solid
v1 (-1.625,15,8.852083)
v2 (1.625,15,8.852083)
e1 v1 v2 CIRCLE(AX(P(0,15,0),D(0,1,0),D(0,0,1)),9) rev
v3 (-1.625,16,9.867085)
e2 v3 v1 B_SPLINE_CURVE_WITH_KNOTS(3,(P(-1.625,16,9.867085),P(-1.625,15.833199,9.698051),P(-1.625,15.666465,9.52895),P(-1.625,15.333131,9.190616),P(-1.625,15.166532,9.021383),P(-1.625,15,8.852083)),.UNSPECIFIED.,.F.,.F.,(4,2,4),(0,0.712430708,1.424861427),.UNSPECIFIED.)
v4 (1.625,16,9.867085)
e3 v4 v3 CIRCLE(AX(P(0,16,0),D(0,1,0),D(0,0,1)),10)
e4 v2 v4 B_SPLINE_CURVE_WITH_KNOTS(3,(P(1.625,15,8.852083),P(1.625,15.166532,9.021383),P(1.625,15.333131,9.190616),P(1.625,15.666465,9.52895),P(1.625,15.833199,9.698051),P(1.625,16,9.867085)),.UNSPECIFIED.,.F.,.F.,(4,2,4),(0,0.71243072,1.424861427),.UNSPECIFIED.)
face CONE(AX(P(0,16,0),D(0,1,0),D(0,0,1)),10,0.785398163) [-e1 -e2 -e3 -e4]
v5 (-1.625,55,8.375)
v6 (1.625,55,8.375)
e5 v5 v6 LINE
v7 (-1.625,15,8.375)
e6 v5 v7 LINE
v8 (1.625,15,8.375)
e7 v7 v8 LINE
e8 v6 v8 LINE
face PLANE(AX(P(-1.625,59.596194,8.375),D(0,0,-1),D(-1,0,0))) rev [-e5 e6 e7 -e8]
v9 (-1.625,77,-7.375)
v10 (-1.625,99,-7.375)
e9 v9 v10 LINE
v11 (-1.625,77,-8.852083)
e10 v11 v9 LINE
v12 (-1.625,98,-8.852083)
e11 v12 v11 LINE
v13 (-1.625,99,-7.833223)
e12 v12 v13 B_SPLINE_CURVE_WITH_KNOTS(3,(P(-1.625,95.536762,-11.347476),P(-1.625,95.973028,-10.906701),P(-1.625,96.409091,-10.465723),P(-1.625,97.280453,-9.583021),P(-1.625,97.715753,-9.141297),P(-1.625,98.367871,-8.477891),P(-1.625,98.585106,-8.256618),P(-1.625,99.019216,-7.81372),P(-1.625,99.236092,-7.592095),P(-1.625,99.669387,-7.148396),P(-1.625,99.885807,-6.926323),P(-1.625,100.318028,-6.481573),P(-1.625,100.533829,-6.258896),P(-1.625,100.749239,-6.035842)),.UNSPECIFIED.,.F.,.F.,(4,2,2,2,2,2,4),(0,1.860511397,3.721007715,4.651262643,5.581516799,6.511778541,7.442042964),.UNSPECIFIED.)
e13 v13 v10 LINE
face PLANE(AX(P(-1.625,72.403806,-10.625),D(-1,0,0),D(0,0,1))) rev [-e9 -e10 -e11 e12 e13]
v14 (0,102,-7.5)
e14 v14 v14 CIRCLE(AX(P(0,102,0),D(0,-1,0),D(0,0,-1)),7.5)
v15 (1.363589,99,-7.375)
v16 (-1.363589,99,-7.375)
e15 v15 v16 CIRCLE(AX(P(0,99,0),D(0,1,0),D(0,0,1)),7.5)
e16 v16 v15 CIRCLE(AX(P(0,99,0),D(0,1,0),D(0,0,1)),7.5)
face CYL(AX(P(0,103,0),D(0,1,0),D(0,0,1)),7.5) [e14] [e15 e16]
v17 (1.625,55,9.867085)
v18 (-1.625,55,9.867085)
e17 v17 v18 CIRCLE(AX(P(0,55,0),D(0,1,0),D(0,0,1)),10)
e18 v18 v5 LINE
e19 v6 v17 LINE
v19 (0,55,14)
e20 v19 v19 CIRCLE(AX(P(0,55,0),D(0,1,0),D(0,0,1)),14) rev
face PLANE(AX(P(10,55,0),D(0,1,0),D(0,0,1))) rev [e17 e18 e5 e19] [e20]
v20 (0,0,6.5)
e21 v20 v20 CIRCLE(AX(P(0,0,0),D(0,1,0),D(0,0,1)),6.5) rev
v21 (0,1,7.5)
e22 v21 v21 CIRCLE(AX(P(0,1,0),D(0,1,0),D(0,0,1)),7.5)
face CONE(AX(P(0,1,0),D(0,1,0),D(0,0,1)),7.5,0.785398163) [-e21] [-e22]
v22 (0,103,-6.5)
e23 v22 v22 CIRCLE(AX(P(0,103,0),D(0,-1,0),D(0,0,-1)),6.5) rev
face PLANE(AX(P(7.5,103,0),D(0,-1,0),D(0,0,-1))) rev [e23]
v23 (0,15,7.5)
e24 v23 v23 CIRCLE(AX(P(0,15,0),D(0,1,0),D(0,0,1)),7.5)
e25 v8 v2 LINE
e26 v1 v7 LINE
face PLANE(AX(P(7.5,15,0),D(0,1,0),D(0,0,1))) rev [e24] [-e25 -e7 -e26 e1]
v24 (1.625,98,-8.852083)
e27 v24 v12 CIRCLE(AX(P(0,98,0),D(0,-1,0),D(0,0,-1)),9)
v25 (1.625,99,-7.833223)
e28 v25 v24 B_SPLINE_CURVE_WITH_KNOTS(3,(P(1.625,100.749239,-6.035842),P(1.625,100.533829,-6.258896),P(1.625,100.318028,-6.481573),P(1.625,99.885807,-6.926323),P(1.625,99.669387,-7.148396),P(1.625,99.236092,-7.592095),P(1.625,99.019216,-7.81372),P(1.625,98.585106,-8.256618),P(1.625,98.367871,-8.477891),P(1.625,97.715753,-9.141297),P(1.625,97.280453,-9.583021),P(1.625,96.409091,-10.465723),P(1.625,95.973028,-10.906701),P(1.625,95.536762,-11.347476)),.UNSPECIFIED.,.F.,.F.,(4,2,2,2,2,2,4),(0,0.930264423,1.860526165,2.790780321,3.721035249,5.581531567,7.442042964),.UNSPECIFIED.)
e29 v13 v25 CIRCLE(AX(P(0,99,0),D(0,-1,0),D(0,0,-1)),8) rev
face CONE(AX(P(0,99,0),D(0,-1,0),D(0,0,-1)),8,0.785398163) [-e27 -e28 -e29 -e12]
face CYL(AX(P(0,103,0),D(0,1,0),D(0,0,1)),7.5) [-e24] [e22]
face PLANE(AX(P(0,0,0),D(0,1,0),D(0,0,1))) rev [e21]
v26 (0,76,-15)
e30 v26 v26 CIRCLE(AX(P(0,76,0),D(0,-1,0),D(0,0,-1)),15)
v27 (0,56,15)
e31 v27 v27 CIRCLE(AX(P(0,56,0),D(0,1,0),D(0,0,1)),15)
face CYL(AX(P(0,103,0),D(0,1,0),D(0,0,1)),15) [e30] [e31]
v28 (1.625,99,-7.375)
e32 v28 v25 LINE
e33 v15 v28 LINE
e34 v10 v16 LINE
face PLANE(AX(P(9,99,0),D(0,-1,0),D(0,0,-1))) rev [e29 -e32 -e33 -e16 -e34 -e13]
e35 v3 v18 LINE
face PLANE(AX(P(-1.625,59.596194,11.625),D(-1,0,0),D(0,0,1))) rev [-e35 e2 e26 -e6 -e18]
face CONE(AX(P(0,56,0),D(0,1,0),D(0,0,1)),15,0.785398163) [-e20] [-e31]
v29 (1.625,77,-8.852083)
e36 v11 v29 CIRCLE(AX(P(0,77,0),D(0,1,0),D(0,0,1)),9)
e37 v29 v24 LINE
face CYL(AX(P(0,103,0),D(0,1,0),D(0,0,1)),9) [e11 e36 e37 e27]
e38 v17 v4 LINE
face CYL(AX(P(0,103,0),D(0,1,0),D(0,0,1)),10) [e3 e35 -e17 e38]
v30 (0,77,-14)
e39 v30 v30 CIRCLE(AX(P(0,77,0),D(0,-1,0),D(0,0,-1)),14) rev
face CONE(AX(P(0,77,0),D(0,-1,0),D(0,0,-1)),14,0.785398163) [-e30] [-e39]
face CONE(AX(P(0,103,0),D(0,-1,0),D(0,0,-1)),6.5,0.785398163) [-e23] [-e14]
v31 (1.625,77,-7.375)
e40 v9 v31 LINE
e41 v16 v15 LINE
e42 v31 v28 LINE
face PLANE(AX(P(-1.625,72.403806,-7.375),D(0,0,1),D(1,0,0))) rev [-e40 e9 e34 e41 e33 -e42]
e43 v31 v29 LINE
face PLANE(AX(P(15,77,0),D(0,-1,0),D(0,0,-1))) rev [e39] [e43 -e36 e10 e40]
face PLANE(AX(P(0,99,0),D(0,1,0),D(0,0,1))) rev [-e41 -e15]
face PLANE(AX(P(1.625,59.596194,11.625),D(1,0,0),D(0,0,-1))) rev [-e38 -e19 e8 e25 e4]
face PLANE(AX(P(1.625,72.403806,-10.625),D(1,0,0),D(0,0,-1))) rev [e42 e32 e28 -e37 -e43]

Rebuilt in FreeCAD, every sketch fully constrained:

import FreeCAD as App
import Part
import Sketcher
from FreeCAD import Vector
Q = App.Units.Quantity


def edges_at(feature, points):
    """Names of the edges that pass closest to the given points."""
    edges = feature.Shape.Edges
    near = lambda p: min(range(len(edges)), key=lambda i: edges[i].distToShape(Part.Vertex(*p))[0])
    return sorted({f"Edge{near(p) + 1}" for p in points})

doc = App.newDocument("Part")
body = doc.addObject("PartDesign::Body", "Body")

# Sketch on XY plane
sketch1 = body.newObject("Sketcher::SketchObject", "Sketch")
sketch1.AttachmentSupport = (doc.getObject("XY_Plane"), [""])
sketch1.MapMode = "FlatFace"
sketch1.addGeometry([
    Part.LineSegment(Vector(0, 0, 0), Vector(7.5, 0, 0)),  # 0
    Part.LineSegment(Vector(7.5, 0, 0), Vector(7.5, 15, 0)),  # 1
    Part.LineSegment(Vector(7.5, 15, 0), Vector(10, 15, 0)),  # 2
    Part.LineSegment(Vector(10, 15, 0), Vector(10, 55, 0)),  # 3
    Part.LineSegment(Vector(10, 55, 0), Vector(15, 55, 0)),  # 4
    Part.LineSegment(Vector(15, 55, 0), Vector(15, 77, 0)),  # 5
    Part.LineSegment(Vector(15, 77, 0), Vector(9, 77, 0)),  # 6
    Part.LineSegment(Vector(9, 77, 0), Vector(9, 99, 0)),  # 7
    Part.LineSegment(Vector(9, 99, 0), Vector(7.5, 99, 0)),  # 8
    Part.LineSegment(Vector(7.5, 99, 0), Vector(7.5, 103, 0)),  # 9
    Part.LineSegment(Vector(7.5, 103, 0), Vector(0, 103, 0)),  # 10
    Part.LineSegment(Vector(0, 103, 0), Vector(0, 0, 0)),  # 11
], False)
sketch1.addConstraint([
    Sketcher.Constraint("Coincident", 0, 2, 1, 1),
    Sketcher.Constraint("Coincident", 1, 2, 2, 1),
    Sketcher.Constraint("Coincident", 2, 2, 3, 1),
    Sketcher.Constraint("Coincident", 3, 2, 4, 1),
    Sketcher.Constraint("Coincident", 4, 2, 5, 1),
    Sketcher.Constraint("Coincident", 5, 2, 6, 1),
    Sketcher.Constraint("Coincident", 6, 2, 7, 1),
    Sketcher.Constraint("Coincident", 7, 2, 8, 1),
    Sketcher.Constraint("Coincident", 8, 2, 9, 1),
    Sketcher.Constraint("Coincident", 9, 2, 10, 1),
    Sketcher.Constraint("Coincident", 10, 2, 11, 1),
    Sketcher.Constraint("Coincident", 11, 2, 0, 1),
    Sketcher.Constraint("Horizontal", 0),
    Sketcher.Constraint("Vertical", 1),
    Sketcher.Constraint("Horizontal", 2),
    Sketcher.Constraint("Vertical", 3),
    Sketcher.Constraint("Horizontal", 4),
    Sketcher.Constraint("Vertical", 5),
    Sketcher.Constraint("Horizontal", 6),
    Sketcher.Constraint("Vertical", 7),
    Sketcher.Constraint("Horizontal", 8),
    Sketcher.Constraint("Vertical", 9),
    Sketcher.Constraint("Horizontal", 10),
    Sketcher.Constraint("Vertical", 11),
    Sketcher.Constraint("Coincident", 11, 2, -1, 1),
    Sketcher.Constraint("Vertical", 1, 2, 8, 2),
    Sketcher.Constraint("Equal", 5, 7),
    Sketcher.Constraint("DistanceX", 4, 1, 4, 2, Q("5 mm")),
    Sketcher.Constraint("DistanceX", 6, 2, 6, 1, Q("6 mm")),
    Sketcher.Constraint("DistanceY", 1, 1, 1, 2, Q("15 mm")),
    Sketcher.Constraint("DistanceY", 3, 1, 3, 2, Q("40 mm")),
    Sketcher.Constraint("DistanceY", 5, 1, 5, 2, Q("22 mm")),
    Sketcher.Constraint("DistanceY", 9, 1, 9, 2, Q("4 mm")),
    Sketcher.Constraint("DistanceX", 0, 1, 0, 2, Q("7.5 mm")),
    Sketcher.Constraint("DistanceX", 2, 1, 2, 2, Q("2.5 mm")),
])
revolution = body.newObject("PartDesign::Revolution", "Revolution")
revolution.Profile = sketch1
revolution.ReferenceAxis = (sketch1, ["V_Axis"])
revolution.Angle = 360

# Sketch on XZ plane
sketch2 = body.newObject("Sketcher::SketchObject", "Sketch001")
sketch2.AttachmentSupport = (doc.getObject("XZ_Plane"), [""])
sketch2.MapMode = "FlatFace"
sketch2.AttachmentOffset = App.Placement(Vector(0, 0, -15), App.Rotation())
sketch2.addGeometry([
    Part.LineSegment(Vector(-1.6, 11.6, 0), Vector(-1.6, 8.4, 0)),
    Part.LineSegment(Vector(-1.6, 8.4, 0), Vector(1.6, 8.4, 0)),
    Part.LineSegment(Vector(1.6, 8.4, 0), Vector(1.6, 11.6, 0)),
    Part.LineSegment(Vector(1.6, 11.6, 0), Vector(-1.6, 11.6, 0)),
], False)
sketch2.addConstraint([
    Sketcher.Constraint("Coincident", 0, 2, 1, 1),
    Sketcher.Constraint("Coincident", 1, 2, 2, 1),
    Sketcher.Constraint("Coincident", 2, 2, 3, 1),
    Sketcher.Constraint("Coincident", 3, 2, 0, 1),
    Sketcher.Constraint("Vertical", 0),
    Sketcher.Constraint("Horizontal", 1),
    Sketcher.Constraint("Vertical", 2),
    Sketcher.Constraint("Horizontal", 3),
    Sketcher.Constraint("Equal", 3, 0),
    Sketcher.Constraint("DistanceX", 1, 1, 1, 2, Q("3.25 mm")),
    Sketcher.Constraint("DistanceX", 0, 2, -1, 1, Q("1.625 mm")),
    Sketcher.Constraint("DistanceY", -1, 1, 0, 2, Q("8.375 mm")),
])
pocket1 = body.newObject("PartDesign::Pocket", "Pocket")
pocket1.Profile = sketch2
pocket1.Length = 40
doc.recompute()

chamfer = body.newObject("PartDesign::Chamfer", "Chamfer")
chamfer.Base = (pocket1, edges_at(pocket1, [
    (0, 77, -15),
    (0, 55, -15),
    (0, 15, -10),
    (0, 0, -7.5),
    (0, 103, -7.5),
    (0, 99, -9),
]))
chamfer.Size = 1

# Sketch on XZ plane
sketch3 = body.newObject("Sketcher::SketchObject", "Sketch002")
sketch3.AttachmentSupport = (doc.getObject("XZ_Plane"), [""])
sketch3.MapMode = "FlatFace"
sketch3.AttachmentOffset = App.Placement(Vector(0, 0, -99), App.Rotation())
sketch3.addGeometry([
    Part.LineSegment(Vector(-1.6, -10.6, 0), Vector(-1.6, -7.4, 0)),
    Part.LineSegment(Vector(-1.6, -7.4, 0), Vector(1.6, -7.4, 0)),
    Part.LineSegment(Vector(1.6, -7.4, 0), Vector(1.6, -10.6, 0)),
    Part.LineSegment(Vector(1.6, -10.6, 0), Vector(-1.6, -10.6, 0)),
], False)
sketch3.addConstraint([
    Sketcher.Constraint("Coincident", 0, 2, 1, 1),
    Sketcher.Constraint("Coincident", 1, 2, 2, 1),
    Sketcher.Constraint("Coincident", 2, 2, 3, 1),
    Sketcher.Constraint("Coincident", 3, 2, 0, 1),
    Sketcher.Constraint("Vertical", 0),
    Sketcher.Constraint("Horizontal", 1),
    Sketcher.Constraint("Vertical", 2),
    Sketcher.Constraint("Horizontal", 3),
    Sketcher.Constraint("Equal", 3, 0),
    Sketcher.Constraint("DistanceX", 1, 1, 1, 2, Q("3.25 mm")),
    Sketcher.Constraint("DistanceX", 0, 2, -1, 1, Q("1.625 mm")),
    Sketcher.Constraint("DistanceY", 0, 2, -1, 1, Q("7.375 mm")),
])
pocket2 = body.newObject("PartDesign::Pocket", "Pocket001")
pocket2.Profile = sketch3
pocket2.Length = 22
pocket2.Reversed = True

doc.recompute()
